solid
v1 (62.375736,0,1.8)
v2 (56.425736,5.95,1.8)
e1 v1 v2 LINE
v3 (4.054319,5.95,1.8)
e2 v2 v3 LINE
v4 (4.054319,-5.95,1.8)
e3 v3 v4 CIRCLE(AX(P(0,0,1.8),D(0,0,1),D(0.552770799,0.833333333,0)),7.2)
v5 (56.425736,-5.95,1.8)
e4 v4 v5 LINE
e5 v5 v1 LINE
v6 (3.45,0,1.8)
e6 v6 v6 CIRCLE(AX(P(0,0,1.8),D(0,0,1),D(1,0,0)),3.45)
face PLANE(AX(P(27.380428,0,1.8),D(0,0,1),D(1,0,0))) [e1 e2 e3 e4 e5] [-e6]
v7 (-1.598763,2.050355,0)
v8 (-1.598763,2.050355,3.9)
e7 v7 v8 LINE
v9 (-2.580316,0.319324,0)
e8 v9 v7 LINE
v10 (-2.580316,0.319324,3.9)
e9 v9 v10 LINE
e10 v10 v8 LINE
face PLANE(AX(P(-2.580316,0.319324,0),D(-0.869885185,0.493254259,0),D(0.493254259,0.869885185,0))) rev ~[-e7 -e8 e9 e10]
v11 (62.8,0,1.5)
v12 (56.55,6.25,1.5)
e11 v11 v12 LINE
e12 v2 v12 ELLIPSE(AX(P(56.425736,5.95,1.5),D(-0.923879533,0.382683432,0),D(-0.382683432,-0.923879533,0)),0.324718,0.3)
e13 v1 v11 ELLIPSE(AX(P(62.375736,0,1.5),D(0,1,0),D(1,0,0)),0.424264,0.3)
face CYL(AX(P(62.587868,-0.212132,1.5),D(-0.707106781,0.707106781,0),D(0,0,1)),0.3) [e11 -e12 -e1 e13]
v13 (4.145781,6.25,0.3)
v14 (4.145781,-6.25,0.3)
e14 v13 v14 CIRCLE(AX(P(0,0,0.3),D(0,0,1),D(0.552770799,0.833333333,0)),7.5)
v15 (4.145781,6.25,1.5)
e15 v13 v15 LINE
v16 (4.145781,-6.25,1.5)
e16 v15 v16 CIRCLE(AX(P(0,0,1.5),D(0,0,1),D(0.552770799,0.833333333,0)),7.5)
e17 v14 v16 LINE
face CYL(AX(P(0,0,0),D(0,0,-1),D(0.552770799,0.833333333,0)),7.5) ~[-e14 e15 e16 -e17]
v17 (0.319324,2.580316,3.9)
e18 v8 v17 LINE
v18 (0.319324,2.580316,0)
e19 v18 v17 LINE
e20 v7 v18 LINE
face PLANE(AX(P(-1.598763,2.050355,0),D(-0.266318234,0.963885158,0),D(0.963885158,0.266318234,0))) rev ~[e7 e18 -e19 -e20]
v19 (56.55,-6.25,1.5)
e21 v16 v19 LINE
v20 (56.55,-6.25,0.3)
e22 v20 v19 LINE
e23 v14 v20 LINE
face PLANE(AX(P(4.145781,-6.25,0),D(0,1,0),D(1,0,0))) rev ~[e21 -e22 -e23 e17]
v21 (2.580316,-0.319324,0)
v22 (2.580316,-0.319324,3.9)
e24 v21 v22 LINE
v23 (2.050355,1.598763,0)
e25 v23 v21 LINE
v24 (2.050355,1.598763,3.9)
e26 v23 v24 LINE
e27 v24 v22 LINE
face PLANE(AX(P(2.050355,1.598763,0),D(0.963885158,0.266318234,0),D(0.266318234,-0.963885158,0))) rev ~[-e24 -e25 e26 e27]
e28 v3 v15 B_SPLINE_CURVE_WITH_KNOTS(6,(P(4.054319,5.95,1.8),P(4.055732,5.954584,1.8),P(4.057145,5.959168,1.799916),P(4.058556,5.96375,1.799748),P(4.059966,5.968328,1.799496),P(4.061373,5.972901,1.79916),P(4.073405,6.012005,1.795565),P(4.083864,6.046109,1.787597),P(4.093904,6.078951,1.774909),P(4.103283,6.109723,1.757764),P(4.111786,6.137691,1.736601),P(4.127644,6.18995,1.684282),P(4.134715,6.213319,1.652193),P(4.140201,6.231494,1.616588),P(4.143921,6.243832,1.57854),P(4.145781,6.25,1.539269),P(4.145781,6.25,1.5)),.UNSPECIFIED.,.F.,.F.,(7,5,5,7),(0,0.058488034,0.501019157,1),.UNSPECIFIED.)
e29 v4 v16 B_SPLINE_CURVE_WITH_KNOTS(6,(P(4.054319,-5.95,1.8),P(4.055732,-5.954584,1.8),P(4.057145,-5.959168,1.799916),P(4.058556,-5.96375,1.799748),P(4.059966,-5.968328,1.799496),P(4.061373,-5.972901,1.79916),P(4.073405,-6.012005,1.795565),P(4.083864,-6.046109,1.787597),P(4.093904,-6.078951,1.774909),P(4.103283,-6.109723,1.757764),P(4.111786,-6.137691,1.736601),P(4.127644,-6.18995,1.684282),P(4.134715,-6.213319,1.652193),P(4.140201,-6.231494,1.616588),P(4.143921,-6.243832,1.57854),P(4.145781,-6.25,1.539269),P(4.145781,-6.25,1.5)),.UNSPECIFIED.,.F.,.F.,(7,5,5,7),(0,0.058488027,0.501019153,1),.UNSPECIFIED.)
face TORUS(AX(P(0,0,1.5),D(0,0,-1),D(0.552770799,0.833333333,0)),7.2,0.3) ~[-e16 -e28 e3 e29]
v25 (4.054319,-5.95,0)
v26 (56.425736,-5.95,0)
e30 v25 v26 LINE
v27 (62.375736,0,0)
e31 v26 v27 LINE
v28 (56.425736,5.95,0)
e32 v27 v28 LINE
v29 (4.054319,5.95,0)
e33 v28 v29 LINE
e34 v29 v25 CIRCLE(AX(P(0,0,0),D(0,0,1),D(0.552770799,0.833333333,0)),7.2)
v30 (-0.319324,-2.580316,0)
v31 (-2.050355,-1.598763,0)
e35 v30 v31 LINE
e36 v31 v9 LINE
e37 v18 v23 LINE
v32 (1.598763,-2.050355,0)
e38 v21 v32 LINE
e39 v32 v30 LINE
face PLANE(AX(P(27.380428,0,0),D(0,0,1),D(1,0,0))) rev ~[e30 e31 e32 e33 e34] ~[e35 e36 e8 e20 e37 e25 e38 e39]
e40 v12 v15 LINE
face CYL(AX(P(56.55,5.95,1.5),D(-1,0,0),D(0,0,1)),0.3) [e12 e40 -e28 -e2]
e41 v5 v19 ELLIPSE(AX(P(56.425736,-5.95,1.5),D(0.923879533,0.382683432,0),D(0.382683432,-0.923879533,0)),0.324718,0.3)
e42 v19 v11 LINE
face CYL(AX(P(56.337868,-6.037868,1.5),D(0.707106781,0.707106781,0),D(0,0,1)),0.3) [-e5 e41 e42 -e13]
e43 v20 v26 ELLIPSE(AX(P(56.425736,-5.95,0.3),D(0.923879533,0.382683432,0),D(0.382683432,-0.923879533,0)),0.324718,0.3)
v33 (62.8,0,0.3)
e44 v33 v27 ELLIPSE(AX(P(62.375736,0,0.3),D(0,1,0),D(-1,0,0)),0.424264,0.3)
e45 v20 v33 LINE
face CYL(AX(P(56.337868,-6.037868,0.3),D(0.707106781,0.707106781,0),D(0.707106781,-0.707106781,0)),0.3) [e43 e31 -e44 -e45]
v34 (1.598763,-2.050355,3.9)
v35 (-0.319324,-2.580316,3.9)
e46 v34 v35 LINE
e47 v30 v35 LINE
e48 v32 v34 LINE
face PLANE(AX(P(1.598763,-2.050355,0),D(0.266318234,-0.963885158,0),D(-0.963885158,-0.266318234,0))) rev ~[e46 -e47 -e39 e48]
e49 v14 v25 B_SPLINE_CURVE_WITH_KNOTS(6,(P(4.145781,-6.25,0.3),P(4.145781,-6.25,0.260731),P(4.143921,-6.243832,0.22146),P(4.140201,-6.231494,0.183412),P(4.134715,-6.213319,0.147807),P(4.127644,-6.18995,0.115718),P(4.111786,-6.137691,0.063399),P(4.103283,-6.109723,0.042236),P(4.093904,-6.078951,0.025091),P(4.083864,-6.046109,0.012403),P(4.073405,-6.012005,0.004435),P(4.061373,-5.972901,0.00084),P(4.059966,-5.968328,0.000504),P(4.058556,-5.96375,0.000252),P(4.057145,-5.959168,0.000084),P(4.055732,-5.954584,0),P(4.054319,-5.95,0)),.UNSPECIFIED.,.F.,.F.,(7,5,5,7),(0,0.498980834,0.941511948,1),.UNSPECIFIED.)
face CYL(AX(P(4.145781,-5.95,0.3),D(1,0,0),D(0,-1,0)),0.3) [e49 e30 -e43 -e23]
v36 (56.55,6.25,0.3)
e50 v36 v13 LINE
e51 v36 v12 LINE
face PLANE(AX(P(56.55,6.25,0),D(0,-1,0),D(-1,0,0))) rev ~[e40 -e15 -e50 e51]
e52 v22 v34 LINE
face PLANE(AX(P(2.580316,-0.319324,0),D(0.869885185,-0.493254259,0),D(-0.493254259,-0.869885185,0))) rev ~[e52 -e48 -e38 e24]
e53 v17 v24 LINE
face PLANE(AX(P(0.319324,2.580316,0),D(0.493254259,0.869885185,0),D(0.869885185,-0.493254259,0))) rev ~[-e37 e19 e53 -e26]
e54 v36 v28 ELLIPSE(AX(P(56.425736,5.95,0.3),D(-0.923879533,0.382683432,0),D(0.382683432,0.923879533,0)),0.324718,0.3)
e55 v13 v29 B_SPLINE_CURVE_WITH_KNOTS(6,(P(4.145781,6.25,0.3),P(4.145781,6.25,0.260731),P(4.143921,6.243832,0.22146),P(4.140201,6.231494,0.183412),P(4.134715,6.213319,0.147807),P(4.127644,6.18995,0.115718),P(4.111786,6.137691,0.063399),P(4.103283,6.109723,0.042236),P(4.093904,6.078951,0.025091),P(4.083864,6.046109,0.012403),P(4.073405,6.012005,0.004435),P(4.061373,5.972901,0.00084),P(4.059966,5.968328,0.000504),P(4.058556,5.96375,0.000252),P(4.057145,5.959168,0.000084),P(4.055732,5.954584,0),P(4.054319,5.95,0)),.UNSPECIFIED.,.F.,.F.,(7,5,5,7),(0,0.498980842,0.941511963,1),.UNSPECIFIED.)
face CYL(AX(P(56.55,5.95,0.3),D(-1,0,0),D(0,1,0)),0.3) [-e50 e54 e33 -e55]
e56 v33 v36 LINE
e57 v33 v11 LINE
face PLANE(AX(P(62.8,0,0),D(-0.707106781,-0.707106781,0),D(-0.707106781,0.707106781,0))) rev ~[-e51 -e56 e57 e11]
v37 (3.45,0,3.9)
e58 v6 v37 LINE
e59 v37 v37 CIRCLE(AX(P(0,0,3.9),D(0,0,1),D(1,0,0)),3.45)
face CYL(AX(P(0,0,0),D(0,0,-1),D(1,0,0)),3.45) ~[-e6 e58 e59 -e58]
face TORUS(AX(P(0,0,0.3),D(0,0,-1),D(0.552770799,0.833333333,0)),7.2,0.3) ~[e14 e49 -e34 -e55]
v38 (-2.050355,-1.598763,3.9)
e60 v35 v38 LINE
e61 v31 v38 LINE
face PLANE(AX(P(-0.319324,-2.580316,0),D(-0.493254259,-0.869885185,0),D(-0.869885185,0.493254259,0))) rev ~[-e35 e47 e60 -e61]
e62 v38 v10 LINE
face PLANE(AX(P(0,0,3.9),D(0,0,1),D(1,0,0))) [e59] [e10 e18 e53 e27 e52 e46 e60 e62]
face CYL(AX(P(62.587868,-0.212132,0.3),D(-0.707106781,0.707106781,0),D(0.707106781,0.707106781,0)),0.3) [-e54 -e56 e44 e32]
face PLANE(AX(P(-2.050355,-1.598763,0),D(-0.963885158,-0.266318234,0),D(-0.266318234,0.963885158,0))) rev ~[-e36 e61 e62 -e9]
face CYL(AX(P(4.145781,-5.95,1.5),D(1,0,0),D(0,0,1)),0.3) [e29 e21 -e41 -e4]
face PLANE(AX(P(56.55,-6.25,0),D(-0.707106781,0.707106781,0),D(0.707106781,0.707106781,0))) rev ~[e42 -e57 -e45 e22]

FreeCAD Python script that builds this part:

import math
import FreeCAD as App
import Part
import Sketcher
from FreeCAD import Vector


def edges_at(feature, points):
    """Names of the edges that pass closest to the given points."""
    edges = feature.Shape.Edges
    near = lambda p: min(range(len(edges)), key=lambda i: edges[i].distToShape(Part.Vertex(*p))[0])
    return sorted({f"Edge{near(p) + 1}" for p in points})


def add_polygon(sketch, points):
    """Adds a closed chain of lines whose ends are joined by coincident constraints."""
    first, n = sketch.GeometryCount, len(points)
    for a, b in zip(points, points[1:] + points[:1]):
        sketch.addGeometry(Part.LineSegment(App.Vector(*a, 0), App.Vector(*b, 0)), False)
    for i in range(n):
        sketch.addConstraint(Sketcher.Constraint("Coincident", first + i, 2, first + (i + 1) % n, 1))

doc = App.newDocument("Part")
body = doc.addObject("PartDesign::Body", "Body")

# Sketch on XY plane
sketch1 = body.newObject("Sketcher::SketchObject", "Sketch")
sketch1.AttachmentSupport = (doc.getObject("XY_Plane"), [""])
sketch1.MapMode = "FlatFace"
sketch1.addGeometry(Part.LineSegment(Vector(56.5, 6.2, 0), Vector(4.1, 6.2, 0)), False)
sketch1.addGeometry(Part.ArcOfCircle(Part.Circle(Vector(0, 0, 0), Vector(0, 0, 1), 7.5), math.radians(56), math.radians(304)), False)
sketch1.addGeometry(Part.LineSegment(Vector(4.1, -6.2, 0), Vector(56.5, -6.2, 0)), False)
sketch1.addGeometry(Part.LineSegment(Vector(56.5, -6.2, 0), Vector(62.8, 0, 0)), False)
sketch1.addGeometry(Part.LineSegment(Vector(62.8, 0, 0), Vector(56.5, 6.2, 0)), False)
sketch1.addGeometry(Part.Circle(Vector(0, 0, 0), Vector(0, 0, 1), 3.5), False)
sketch1.addConstraint(Sketcher.Constraint("Coincident", 0, 2, 1, 1))
sketch1.addConstraint(Sketcher.Constraint("Coincident", 1, 2, 2, 1))
sketch1.addConstraint(Sketcher.Constraint("Coincident", 2, 2, 3, 1))
sketch1.addConstraint(Sketcher.Constraint("Coincident", 3, 2, 4, 1))
sketch1.addConstraint(Sketcher.Constraint("Coincident", 4, 2, 0, 1))
sketch1.addConstraint(Sketcher.Constraint("Horizontal", 0))
sketch1.addConstraint(Sketcher.Constraint("Horizontal", 2))
sketch1.addConstraint(Sketcher.Constraint("Coincident", 1, 3, -1, 1))
sketch1.addConstraint(Sketcher.Constraint("Coincident", 5, 3, -1, 1))
sketch1.addConstraint(Sketcher.Constraint("Symmetric", 2, 2, 4, 2, -1))
sketch1.addConstraint(Sketcher.Constraint("PointOnObject", 3, 2, -1))
sketch1.addConstraint(Sketcher.Constraint("Perpendicular", 3, 4))
sketch1.addConstraint(Sketcher.Constraint("Diameter", 5, 6.9))
sketch1.addConstraint(Sketcher.Constraint("Radius", 1, 7.5))
sketch1.addConstraint(Sketcher.Constraint("DistanceX", -1, 1, 3, 2, 62.8))
sketch1.addConstraint(Sketcher.Constraint("DistanceY", 1, 2, 0, 2, 12.5))
pad1 = body.newObject("PartDesign::Pad", "Pad")
pad1.Profile = sketch1
pad1.Length = 1.8

# Sketch on XY plane
sketch2 = body.newObject("Sketcher::SketchObject", "Sketch001")
sketch2.AttachmentSupport = (doc.getObject("XY_Plane"), [""])
sketch2.MapMode = "FlatFace"
sketch2.addGeometry(Part.Circle(Vector(0, 0, 0), Vector(0, 0, 1), 3.5), False)  # 0
add_polygon(sketch2, [(2.1, 1.6), (2.6, -0.3), (1.6, -2.1), (-0.3, -2.6), (-2.1, -1.6), (-2.6, 0.3), (-1.6, 2.1), (0.3, 2.6)])  # lines 1-8
sketch2.addConstraint(Sketcher.Constraint("Coincident", 0, 3, -1, 1))
sketch2.addConstraint(Sketcher.Constraint("Symmetric", 1, 2, 5, 2, -1, 1))
sketch2.addConstraint(Sketcher.Constraint("Symmetric", 2, 2, 6, 2, -1, 1))
sketch2.addConstraint(Sketcher.Constraint("Symmetric", 3, 2, 7, 2, -1, 1))
sketch2.addConstraint(Sketcher.Constraint("Symmetric", 4, 2, 8, 2, -1, 1))
sketch2.addConstraint(Sketcher.Constraint("Perpendicular", 1, 3))
sketch2.addConstraint(Sketcher.Constraint("Perpendicular", 2, 4))
sketch2.addConstraint(Sketcher.Constraint("Equal", 1, 2))
sketch2.addConstraint(Sketcher.Constraint("Equal", 2, 3))
sketch2.addConstraint(Sketcher.Constraint("Equal", 3, 4))
sketch2.addConstraint(Sketcher.Constraint("Diameter", 0, 6.9))
sketch2.addConstraint(Sketcher.Constraint("DistanceY", 2, 2, 1, 2, 1.731031))
sketch2.addConstraint(Sketcher.Constraint("DistanceY", 3, 2, 2, 2, 0.529961))
sketch2.addConstraint(Sketcher.Constraint("DistanceX", 3, 2, 1, 2, 2.89964))
pad2 = body.newObject("PartDesign::Pad", "Pad001")
pad2.Profile = sketch2
pad2.Length = 3.9
doc.recompute()

fillet = body.newObject("PartDesign::Fillet", "Fillet")
fillet.Base = (pad2, edges_at(pad2, [
    (-7.5, 0, 1.8),
    (30.348, 6.25, 1.8),
    (30.348, -6.25, 1.8),
    (59.675, -3.125, 1.8),
    (59.675, 3.125, 1.8),
    (-7.5, 0, 0),
    (30.348, -6.25, 0),
    (59.675, 3.125, 0),
    (59.675, -3.125, 0),
    (30.348, 6.25, 0),
]))
fillet.Radius = 0.3

doc.recompute()
